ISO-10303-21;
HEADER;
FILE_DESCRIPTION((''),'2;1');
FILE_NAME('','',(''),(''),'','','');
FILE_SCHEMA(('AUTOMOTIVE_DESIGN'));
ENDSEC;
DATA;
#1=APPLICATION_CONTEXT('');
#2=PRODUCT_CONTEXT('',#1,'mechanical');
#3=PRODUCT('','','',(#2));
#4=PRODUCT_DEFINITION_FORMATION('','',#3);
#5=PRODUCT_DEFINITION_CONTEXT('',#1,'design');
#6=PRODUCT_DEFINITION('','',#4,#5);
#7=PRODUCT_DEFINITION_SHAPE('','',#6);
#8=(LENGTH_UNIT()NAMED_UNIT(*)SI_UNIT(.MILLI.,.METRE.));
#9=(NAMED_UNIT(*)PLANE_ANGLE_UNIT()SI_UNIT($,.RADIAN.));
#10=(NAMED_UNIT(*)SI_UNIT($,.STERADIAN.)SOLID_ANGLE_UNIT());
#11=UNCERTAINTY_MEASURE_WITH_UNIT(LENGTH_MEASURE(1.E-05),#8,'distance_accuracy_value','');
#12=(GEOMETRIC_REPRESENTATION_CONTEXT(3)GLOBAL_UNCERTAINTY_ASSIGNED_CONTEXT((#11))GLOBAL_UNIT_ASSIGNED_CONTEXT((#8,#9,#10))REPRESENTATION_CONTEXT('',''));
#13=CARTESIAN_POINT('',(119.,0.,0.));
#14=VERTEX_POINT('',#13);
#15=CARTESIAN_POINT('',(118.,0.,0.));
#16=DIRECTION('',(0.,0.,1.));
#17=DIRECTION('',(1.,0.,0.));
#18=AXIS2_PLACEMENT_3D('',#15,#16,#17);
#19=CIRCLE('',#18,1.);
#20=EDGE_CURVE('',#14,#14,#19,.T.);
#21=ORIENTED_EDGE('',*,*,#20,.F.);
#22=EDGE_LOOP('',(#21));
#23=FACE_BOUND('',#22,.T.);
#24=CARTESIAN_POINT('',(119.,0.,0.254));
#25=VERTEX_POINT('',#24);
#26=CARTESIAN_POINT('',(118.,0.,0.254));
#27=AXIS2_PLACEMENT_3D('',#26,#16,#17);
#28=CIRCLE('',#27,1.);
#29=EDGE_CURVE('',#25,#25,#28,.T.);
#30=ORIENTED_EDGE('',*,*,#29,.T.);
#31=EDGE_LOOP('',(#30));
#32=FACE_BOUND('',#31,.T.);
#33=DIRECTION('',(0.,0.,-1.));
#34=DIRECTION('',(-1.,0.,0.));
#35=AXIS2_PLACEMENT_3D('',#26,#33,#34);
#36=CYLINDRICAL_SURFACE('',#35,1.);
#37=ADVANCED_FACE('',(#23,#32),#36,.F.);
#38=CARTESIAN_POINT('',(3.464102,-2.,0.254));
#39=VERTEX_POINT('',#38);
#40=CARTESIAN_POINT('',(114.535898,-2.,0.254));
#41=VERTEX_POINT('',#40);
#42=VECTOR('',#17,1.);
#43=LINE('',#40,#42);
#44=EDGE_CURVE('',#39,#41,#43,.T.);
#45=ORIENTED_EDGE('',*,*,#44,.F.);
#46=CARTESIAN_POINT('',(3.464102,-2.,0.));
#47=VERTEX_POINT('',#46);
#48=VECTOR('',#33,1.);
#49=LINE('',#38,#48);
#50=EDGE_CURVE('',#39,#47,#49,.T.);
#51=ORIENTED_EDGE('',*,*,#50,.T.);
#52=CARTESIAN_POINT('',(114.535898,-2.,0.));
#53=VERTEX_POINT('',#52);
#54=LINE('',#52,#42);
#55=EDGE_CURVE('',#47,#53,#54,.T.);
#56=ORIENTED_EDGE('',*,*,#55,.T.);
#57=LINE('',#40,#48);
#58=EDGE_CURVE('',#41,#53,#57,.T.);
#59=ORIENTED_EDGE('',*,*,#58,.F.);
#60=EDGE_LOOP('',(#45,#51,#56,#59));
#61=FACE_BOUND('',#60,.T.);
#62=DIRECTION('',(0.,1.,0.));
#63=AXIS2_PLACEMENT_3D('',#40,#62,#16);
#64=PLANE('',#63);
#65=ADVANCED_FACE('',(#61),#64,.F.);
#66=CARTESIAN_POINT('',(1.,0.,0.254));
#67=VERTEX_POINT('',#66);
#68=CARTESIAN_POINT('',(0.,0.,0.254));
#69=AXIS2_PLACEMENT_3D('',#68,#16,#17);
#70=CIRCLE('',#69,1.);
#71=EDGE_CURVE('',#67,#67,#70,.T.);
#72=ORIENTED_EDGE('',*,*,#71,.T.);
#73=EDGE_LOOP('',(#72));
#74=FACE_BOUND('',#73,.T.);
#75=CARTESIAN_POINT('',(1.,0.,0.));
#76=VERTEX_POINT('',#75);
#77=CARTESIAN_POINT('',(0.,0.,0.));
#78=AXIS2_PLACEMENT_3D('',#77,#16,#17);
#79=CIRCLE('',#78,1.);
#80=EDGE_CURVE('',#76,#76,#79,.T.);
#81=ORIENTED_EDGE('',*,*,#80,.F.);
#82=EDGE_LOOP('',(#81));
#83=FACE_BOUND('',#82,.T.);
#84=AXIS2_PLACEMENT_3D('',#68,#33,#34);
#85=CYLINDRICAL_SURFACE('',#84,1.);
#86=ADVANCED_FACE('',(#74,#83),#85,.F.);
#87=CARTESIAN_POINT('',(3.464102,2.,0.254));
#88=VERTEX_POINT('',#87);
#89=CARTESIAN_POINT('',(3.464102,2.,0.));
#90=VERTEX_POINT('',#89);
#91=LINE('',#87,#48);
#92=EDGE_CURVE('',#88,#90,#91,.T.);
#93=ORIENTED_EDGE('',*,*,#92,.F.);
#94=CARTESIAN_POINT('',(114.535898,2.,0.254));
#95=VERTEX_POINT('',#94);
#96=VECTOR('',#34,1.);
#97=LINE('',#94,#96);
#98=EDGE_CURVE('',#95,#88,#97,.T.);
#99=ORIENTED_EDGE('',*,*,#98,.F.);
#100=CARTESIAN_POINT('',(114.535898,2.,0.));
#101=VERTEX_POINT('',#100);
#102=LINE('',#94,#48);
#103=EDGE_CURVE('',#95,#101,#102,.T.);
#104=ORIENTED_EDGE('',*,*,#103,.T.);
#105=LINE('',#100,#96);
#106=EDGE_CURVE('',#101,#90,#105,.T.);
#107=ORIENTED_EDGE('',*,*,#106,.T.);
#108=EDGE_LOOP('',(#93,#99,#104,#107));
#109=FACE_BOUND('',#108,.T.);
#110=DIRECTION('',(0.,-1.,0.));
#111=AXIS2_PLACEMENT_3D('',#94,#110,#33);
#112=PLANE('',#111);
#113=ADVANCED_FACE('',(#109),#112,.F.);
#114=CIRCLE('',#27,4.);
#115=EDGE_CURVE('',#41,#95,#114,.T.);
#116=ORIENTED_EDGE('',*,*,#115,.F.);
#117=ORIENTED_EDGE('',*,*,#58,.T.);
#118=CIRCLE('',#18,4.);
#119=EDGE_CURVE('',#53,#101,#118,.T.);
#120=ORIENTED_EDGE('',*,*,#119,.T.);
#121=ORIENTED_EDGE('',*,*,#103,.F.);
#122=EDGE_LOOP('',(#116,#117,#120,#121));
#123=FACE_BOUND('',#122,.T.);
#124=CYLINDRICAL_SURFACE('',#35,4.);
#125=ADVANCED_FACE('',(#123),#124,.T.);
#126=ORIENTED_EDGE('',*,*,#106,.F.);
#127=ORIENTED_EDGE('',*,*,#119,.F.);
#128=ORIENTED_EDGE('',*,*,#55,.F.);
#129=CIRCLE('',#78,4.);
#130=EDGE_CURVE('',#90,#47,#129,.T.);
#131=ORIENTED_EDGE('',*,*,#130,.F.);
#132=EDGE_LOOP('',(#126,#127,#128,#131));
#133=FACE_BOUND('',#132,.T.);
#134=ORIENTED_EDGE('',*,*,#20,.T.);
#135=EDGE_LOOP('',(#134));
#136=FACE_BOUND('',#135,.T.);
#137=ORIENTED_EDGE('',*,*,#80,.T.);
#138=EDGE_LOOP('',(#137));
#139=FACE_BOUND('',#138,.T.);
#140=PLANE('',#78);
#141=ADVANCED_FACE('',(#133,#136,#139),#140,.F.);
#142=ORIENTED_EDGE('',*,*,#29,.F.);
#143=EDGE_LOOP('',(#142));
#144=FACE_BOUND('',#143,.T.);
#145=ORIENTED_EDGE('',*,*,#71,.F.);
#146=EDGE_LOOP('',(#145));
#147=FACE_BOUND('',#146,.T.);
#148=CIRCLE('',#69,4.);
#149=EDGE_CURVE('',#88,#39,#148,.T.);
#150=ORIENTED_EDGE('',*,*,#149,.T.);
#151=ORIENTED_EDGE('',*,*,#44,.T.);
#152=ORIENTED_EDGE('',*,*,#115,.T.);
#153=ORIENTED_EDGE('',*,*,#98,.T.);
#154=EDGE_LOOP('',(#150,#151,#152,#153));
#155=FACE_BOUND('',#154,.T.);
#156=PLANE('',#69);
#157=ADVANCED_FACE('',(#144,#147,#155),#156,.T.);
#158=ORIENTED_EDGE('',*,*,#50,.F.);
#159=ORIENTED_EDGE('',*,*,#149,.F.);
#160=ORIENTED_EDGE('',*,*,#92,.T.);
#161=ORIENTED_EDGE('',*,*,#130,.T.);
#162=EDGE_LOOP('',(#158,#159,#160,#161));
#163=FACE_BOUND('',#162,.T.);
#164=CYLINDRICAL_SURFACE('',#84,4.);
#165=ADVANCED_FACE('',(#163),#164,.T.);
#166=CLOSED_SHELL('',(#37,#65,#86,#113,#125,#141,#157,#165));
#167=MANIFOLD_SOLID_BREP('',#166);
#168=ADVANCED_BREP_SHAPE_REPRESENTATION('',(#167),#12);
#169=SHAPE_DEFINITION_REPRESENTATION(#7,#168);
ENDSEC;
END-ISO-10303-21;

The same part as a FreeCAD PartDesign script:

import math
import FreeCAD as App
import Part
import Sketcher

doc = App.newDocument("Part")
body = doc.addObject("PartDesign::Body", "Body")

# Sketch on XY plane
sketch1 = body.newObject("Sketcher::SketchObject", "Sketch")
sketch1.AttachmentSupport = (doc.getObject("XY_Plane"), [""])
sketch1.MapMode = "FlatFace"
sketch1.addGeometry(Part.LineSegment(App.Vector(118, 4, 0), App.Vector(0, 4, 0)), False)
sketch1.addGeometry(Part.ArcOfCircle(Part.Circle(App.Vector(0, 0, 0), App.Vector(0, 0, 1), 4), math.radians(90), math.radians(270)), False)
sketch1.addGeometry(Part.LineSegment(App.Vector(0, -4, 0), App.Vector(118, -4, 0)), False)
sketch1.addGeometry(Part.ArcOfCircle(Part.Circle(App.Vector(118, 0, 0), App.Vector(0, 0, 1), 4), math.radians(-90), math.radians(90)), False)
sketch1.addGeometry(Part.Circle(App.Vector(118, 0, 0), App.Vector(0, 0, 1), 1), False)
sketch1.addGeometry(Part.Circle(App.Vector(0, 0, 0), App.Vector(0, 0, 1), 1), False)
sketch1.addConstraint(Sketcher.Constraint("Tangent", 0, 2, 1, 1))
sketch1.addConstraint(Sketcher.Constraint("Tangent", 1, 2, 2, 1))
sketch1.addConstraint(Sketcher.Constraint("Tangent", 2, 2, 3, 1))
sketch1.addConstraint(Sketcher.Constraint("Tangent", 3, 2, 0, 1))
sketch1.addConstraint(Sketcher.Constraint("Horizontal", 0))
sketch1.addConstraint(Sketcher.Constraint("Horizontal", 2))
sketch1.addConstraint(Sketcher.Constraint("Coincident", 1, 3, -1, 1))
sketch1.addConstraint(Sketcher.Constraint("Coincident", 5, 3, -1, 1))
sketch1.addConstraint(Sketcher.Constraint("Coincident", 4, 3, 3, 3))
sketch1.addConstraint(Sketcher.Constraint("Equal", 4, 5))
sketch1.addConstraint(Sketcher.Constraint("Diameter", 4, 2.0))
sketch1.addConstraint(Sketcher.Constraint("Radius", 1, 4.0))
sketch1.addConstraint(Sketcher.Constraint("DistanceX", 0, 2, 0, 1, 118.0))
pad1 = body.newObject("PartDesign::Pad", "Pad")
pad1.Profile = sketch1
pad1.Length = 0.254

# Sketch on XY plane
sketch2 = body.newObject("Sketcher::SketchObject", "Sketch001")
sketch2.AttachmentSupport = (doc.getObject("XY_Plane"), [""])
sketch2.MapMode = "FlatFace"
sketch2.addGeometry(Part.LineSegment(App.Vector(114.5, 2, 0), App.Vector(3.5, 2, 0)), False)
sketch2.addGeometry(Part.ArcOfCircle(Part.Circle(App.Vector(0, 0, 0), App.Vector(0, 0, 1), 4), math.radians(30), math.radians(90)), False)
sketch2.addGeometry(Part.LineSegment(App.Vector(0, 4, 0), App.Vector(118, 4, 0)), False)
sketch2.addGeometry(Part.ArcOfCircle(Part.Circle(App.Vector(118, 0, 0), App.Vector(0, 0, 1), 4), math.radians(90), math.radians(150)), False)
sketch2.addGeometry(Part.LineSegment(App.Vector(3.5, -2, 0), App.Vector(114.5, -2, 0)), False)
sketch2.addGeometry(Part.ArcOfCircle(Part.Circle(App.Vector(118, 0, 0), App.Vector(0, 0, 1), 4), math.radians(-150), math.radians(-90)), False)
sketch2.addGeometry(Part.LineSegment(App.Vector(118, -4, 0), App.Vector(0, -4, 0)), False)
sketch2.addGeometry(Part.ArcOfCircle(Part.Circle(App.Vector(0, 0, 0), App.Vector(0, 0, 1), 4), math.radians(-90), math.radians(-30)), False)
sketch2.addConstraint(Sketcher.Constraint("Coincident", 0, 2, 1, 1))
sketch2.addConstraint(Sketcher.Constraint("Tangent", 1, 2, 2, 1))
sketch2.addConstraint(Sketcher.Constraint("Tangent", 2, 2, 3, 1))
sketch2.addConstraint(Sketcher.Constraint("Coincident", 3, 2, 0, 1))
sketch2.addConstraint(Sketcher.Constraint("Coincident", 4, 2, 5, 1))
sketch2.addConstraint(Sketcher.Constraint("Tangent", 5, 2, 6, 1))
sketch2.addConstraint(Sketcher.Constraint("Tangent", 6, 2, 7, 1))
sketch2.addConstraint(Sketcher.Constraint("Coincident", 7, 2, 4, 1))
sketch2.addConstraint(Sketcher.Constraint("Horizontal", 0))
sketch2.addConstraint(Sketcher.Constraint("Horizontal", 2))
sketch2.addConstraint(Sketcher.Constraint("Horizontal", 4))
sketch2.addConstraint(Sketcher.Constraint("Horizontal", 6))
sketch2.addConstraint(Sketcher.Constraint("Coincident", 1, 3, -1, 1))
sketch2.addConstraint(Sketcher.Constraint("Coincident", 7, 3, -1, 1))
sketch2.addConstraint(Sketcher.Constraint("Coincident", 5, 3, 3, 3))
sketch2.addConstraint(Sketcher.Constraint("Equal", 1, 3))
sketch2.addConstraint(Sketcher.Constraint("Equal", 3, 5))
sketch2.addConstraint(Sketcher.Constraint("Vertical", 3, 2, 4, 2))
sketch2.addConstraint(Sketcher.Constraint("Radius", 1, 4.0))
sketch2.addConstraint(Sketcher.Constraint("DistanceX", 2, 1, 2, 2, 118.0))
sketch2.addConstraint(Sketcher.Constraint("DistanceY", -1, 1, 0, 2, 2.0))
pocket1 = body.newObject("PartDesign::Pocket", "Pocket")
pocket1.Profile = sketch2
pocket1.Type = "ThroughAll"
pocket1.Reversed = True

doc.recompute()
